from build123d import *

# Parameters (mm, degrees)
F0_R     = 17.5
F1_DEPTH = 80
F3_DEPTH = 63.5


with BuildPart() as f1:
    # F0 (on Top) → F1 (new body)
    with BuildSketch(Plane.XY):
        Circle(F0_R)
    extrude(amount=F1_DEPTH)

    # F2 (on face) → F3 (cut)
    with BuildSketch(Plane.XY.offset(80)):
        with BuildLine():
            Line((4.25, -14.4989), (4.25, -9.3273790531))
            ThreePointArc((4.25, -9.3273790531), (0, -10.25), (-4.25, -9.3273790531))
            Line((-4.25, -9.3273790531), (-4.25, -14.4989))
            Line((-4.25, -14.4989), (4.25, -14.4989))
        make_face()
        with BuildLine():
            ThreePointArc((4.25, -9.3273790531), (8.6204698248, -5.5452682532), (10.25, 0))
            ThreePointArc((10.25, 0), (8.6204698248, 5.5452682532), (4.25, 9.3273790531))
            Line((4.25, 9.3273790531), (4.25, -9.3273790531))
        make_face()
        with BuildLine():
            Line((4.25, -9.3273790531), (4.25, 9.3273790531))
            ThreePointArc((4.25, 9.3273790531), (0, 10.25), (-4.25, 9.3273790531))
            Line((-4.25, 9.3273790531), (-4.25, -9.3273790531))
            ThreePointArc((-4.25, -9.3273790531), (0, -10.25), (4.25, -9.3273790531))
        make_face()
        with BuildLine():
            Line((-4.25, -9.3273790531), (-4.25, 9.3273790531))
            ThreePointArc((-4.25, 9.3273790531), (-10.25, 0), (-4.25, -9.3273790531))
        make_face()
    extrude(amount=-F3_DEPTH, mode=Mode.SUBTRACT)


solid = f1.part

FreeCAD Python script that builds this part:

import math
import FreeCAD as App
import Part
import Sketcher

doc = App.newDocument("Part")
params = doc.addObject("Spreadsheet::Sheet", "Params")
for row, (alias, value) in enumerate([
    ("sketch1_diameter", "35 mm"),
    ("pad1_length", "80 mm"),
    ("sketch2_radius", "10.25 mm"),
    ("sketch2_width", "8.5 mm"),
    ("pocket1_length", "63.5 mm"),
], start=1):
    params.set(f"A{row}", alias)
    params.set(f"B{row}", "=" + value)
    params.setAlias(f"B{row}", alias)

body = doc.addObject("PartDesign::Body", "Body")

# Sketch on XY plane
sketch1 = body.newObject("Sketcher::SketchObject", "Sketch")
sketch1.AttachmentSupport = (doc.getObject("XY_Plane"), [""])
sketch1.MapMode = "FlatFace"
sketch1.addGeometry(Part.Circle(App.Vector(0, 0, 0), App.Vector(0, 0, 1), 17.5), False)
sketch1.addConstraint([
    Sketcher.Constraint("Coincident", 0, 3, -1, 1),
    Sketcher.Constraint("Diameter", 0, 35.0),
])
sketch1.setExpression("Constraints[1]", "Params.sketch1_diameter")
pad1 = body.newObject("PartDesign::Pad", "Pad")
pad1.Profile = sketch1
pad1.setExpression("Length", "Params.pad1_length")

# Sketch on XY plane
sketch2 = body.newObject("Sketcher::SketchObject", "Sketch001")
sketch2.AttachmentSupport = (doc.getObject("XY_Plane"), [""])
sketch2.MapMode = "FlatFace"
sketch2.AttachmentOffset = App.Placement(App.Vector(0, 0, 80), App.Rotation())
sketch2.addGeometry([
    Part.LineSegment(App.Vector(4.25, -14.4989, 0), App.Vector(4.25, -9.327379, 0)),  # 0
    Part.ArcOfCircle(Part.Circle(App.Vector(0, 0, 0), App.Vector(0, 0, 1), 10.25), math.radians(-65.503721), math.radians(0)),  # 1
    Part.ArcOfCircle(Part.Circle(App.Vector(0, 0, 0), App.Vector(0, 0, 1), 10.25), math.radians(0), math.radians(65.503721)),  # 2
    Part.ArcOfCircle(Part.Circle(App.Vector(0, 0, 0), App.Vector(0, 0, 1), 10.25), math.radians(65.503721), math.radians(114.496279)),  # 3
    Part.ArcOfCircle(Part.Circle(App.Vector(0, 0, 0), App.Vector(0, 0, 1), 10.25), math.radians(114.496279), math.radians(245.503721)),  # 4
    Part.LineSegment(App.Vector(-4.25, -9.327379, 0), App.Vector(-4.25, -14.4989, 0)),  # 5
    Part.LineSegment(App.Vector(-4.25, -14.4989, 0), App.Vector(4.25, -14.4989, 0)),  # 6
], False)
sketch2.addConstraint([
    Sketcher.Constraint("Coincident", 0, 2, 1, 1),
    Sketcher.Constraint("Tangent", 1, 2, 2, 1),
    Sketcher.Constraint("Tangent", 2, 2, 3, 1),
    Sketcher.Constraint("Tangent", 3, 2, 4, 1),
    Sketcher.Constraint("Coincident", 4, 2, 5, 1),
    Sketcher.Constraint("Coincident", 5, 2, 6, 1),
    Sketcher.Constraint("Coincident", 6, 2, 0, 1),
    Sketcher.Constraint("Vertical", 0),
    Sketcher.Constraint("Vertical", 5),
    Sketcher.Constraint("Horizontal", 6),
    Sketcher.Constraint("Coincident", 1, 3, -1, 1),
    Sketcher.Constraint("Coincident", 3, 3, -1, 1),
    Sketcher.Constraint("Equal", 3, 4),
    Sketcher.Constraint("PointOnObject", 1, 2, -1),
    Sketcher.Constraint("Horizontal", 2, 2, 3, 2),
    Sketcher.Constraint("Horizontal", 0, 2, 4, 2),
    Sketcher.Constraint("Vertical", 0, 2, 2, 2),
    Sketcher.Constraint("Radius", 1, 10.25),
    Sketcher.Constraint("DistanceX", 6, 1, 6, 2, 8.5),
    Sketcher.Constraint("DistanceY", 0, 1, 0, 2, 5.171521),
])
sketch2.setExpression("Constraints[17]", "Params.sketch2_radius")
sketch2.setExpression("Constraints[18]", "Params.sketch2_width")
pocket1 = body.newObject("PartDesign::Pocket", "Pocket")
pocket1.Profile = sketch2
pocket1.setExpression("Length", "Params.pocket1_length")

doc.recompute()
